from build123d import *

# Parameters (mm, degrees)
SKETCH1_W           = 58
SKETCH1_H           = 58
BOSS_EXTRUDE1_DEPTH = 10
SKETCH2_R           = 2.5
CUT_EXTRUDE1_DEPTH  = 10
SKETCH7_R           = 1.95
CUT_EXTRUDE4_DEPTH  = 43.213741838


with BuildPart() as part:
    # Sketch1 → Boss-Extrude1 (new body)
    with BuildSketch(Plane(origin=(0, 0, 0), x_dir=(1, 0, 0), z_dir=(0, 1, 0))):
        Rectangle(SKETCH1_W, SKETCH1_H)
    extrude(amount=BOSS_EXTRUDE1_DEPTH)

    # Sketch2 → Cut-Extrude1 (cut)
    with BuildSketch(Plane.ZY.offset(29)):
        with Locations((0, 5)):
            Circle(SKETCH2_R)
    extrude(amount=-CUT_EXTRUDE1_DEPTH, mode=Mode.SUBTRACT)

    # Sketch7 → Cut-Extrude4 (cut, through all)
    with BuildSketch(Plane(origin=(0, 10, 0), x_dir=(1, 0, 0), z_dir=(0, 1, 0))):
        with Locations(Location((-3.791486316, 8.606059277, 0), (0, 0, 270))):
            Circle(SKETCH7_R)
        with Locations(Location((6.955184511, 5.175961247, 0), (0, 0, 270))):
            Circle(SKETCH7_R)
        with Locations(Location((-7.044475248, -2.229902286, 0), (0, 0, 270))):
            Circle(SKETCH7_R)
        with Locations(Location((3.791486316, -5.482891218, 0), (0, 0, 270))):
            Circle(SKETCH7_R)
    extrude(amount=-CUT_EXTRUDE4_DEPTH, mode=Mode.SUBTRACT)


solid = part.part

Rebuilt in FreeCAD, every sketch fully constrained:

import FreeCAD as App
import Part
import Sketcher
from FreeCAD import Vector
Q = App.Units.Quantity

doc = App.newDocument("Part")
body = doc.addObject("PartDesign::Body", "Body")

# Sketch on XZ plane
sketch1 = doc.addObject("Sketcher::SketchObject", "Sketch")
body.addObject(sketch1)
sketch1.AttachmentSupport = (doc.XZ_Plane, [""])
sketch1.MapMode = "FlatFace"
sketch1.addGeometry(Part.LineSegment(Vector(-29, -29, 0), Vector(-29, 29, 0)), False)
sketch1.addGeometry(Part.LineSegment(Vector(-29, 29, 0), Vector(29, 29, 0)), False)
sketch1.addGeometry(Part.LineSegment(Vector(29, 29, 0), Vector(29, -29, 0)), False)
sketch1.addGeometry(Part.LineSegment(Vector(29, -29, 0), Vector(-29, -29, 0)), False)
sketch1.addConstraint(Sketcher.Constraint("Coincident", 0, 2, 1, 1))
sketch1.addConstraint(Sketcher.Constraint("Coincident", 1, 2, 2, 1))
sketch1.addConstraint(Sketcher.Constraint("Coincident", 2, 2, 3, 1))
sketch1.addConstraint(Sketcher.Constraint("Coincident", 3, 2, 0, 1))
sketch1.addConstraint(Sketcher.Constraint("Vertical", 0))
sketch1.addConstraint(Sketcher.Constraint("Horizontal", 1))
sketch1.addConstraint(Sketcher.Constraint("Vertical", 2))
sketch1.addConstraint(Sketcher.Constraint("Horizontal", 3))
sketch1.addConstraint(Sketcher.Constraint("Symmetric", 0, 2, 2, 2, -1, 1))
sketch1.addConstraint(Sketcher.Constraint("Equal", 3, 0))
sketch1.addConstraint(Sketcher.Constraint("DistanceX", 1, 1, 1, 2, Q("58 mm")))
pad1 = doc.addObject("PartDesign::Pad", "Pad")
body.addObject(pad1)
pad1.Profile = sketch1
pad1.Length = 10
pad1.Reversed = True

# Sketch on YZ plane
sketch2 = doc.addObject("Sketcher::SketchObject", "Sketch001")
body.addObject(sketch2)
sketch2.AttachmentSupport = (doc.YZ_Plane, [""])
sketch2.MapMode = "FlatFace"
sketch2.AttachmentOffset = App.Placement(Vector(0, 0, -29), App.Rotation())
sketch2.addGeometry(Part.Circle(Vector(5, 0, 0), Vector(0, 0, 1), 2.5), False)
sketch2.addConstraint(Sketcher.Constraint("PointOnObject", 0, 3, -1))
sketch2.addConstraint(Sketcher.Constraint("Diameter", 0, Q("5 mm")))
sketch2.addConstraint(Sketcher.Constraint("DistanceX", -1, 1, 0, 3, Q("5 mm")))
pocket1 = doc.addObject("PartDesign::Pocket", "Pocket")
body.addObject(pocket1)
pocket1.Profile = sketch2
pocket1.Length = 10
pocket1.Reversed = True

# Sketch on XZ plane
sketch3 = doc.addObject("Sketcher::SketchObject", "Sketch002")
body.addObject(sketch3)
sketch3.AttachmentSupport = (doc.XZ_Plane, [""])
sketch3.MapMode = "FlatFace"
sketch3.AttachmentOffset = App.Placement(Vector(0, 0, -10), App.Rotation())
sketch3.addGeometry(Part.Circle(Vector(-3.791486, -8.606059, 0), Vector(0, 0, 1), 1.95), False)
sketch3.addGeometry(Part.Circle(Vector(6.955185, -5.175961, 0), Vector(0, 0, 1), 1.95), False)
sketch3.addGeometry(Part.Circle(Vector(-7.044475, 2.229902, 0), Vector(0, 0, 1), 1.95), False)
sketch3.addGeometry(Part.Circle(Vector(3.791486, 5.482891, 0), Vector(0, 0, 1), 1.95), False)
sketch3.addConstraint(Sketcher.Constraint("Equal", 0, 1))
sketch3.addConstraint(Sketcher.Constraint("Equal", 1, 2))
sketch3.addConstraint(Sketcher.Constraint("Equal", 2, 3))
sketch3.addConstraint(Sketcher.Constraint("Diameter", 0, Q("3.9 mm")))
sketch3.addConstraint(Sketcher.Constraint("DistanceY", 0, 3, 1, 3, Q("3.430098 mm")))
sketch3.addConstraint(Sketcher.Constraint("DistanceX", 3, 3, 1, 3, Q("3.163698 mm")))
sketch3.addConstraint(Sketcher.Constraint("DistanceY", 0, 3, -1, 1, Q("8.606059 mm")))
sketch3.addConstraint(Sketcher.Constraint("DistanceY", -1, 1, 3, 3, Q("5.482891 mm")))
sketch3.addConstraint(Sketcher.Constraint("DistanceX", 0, 3, 1, 3, Q("10.746671 mm")))
sketch3.addConstraint(Sketcher.Constraint("DistanceX", 2, 3, 0, 3, Q("3.252989 mm")))
sketch3.addConstraint(Sketcher.Constraint("DistanceY", 0, 3, 2, 3, Q("10.835962 mm")))
sketch3.addConstraint(Sketcher.Constraint("DistanceX", 0, 3, -1, 1, Q("3.791486 mm")))
pocket2 = doc.addObject("PartDesign::Pocket", "Pocket001")
body.addObject(pocket2)
pocket2.Profile = sketch3
pocket2.Type = "ThroughAll"
pocket2.Reversed = True

doc.recompute()
